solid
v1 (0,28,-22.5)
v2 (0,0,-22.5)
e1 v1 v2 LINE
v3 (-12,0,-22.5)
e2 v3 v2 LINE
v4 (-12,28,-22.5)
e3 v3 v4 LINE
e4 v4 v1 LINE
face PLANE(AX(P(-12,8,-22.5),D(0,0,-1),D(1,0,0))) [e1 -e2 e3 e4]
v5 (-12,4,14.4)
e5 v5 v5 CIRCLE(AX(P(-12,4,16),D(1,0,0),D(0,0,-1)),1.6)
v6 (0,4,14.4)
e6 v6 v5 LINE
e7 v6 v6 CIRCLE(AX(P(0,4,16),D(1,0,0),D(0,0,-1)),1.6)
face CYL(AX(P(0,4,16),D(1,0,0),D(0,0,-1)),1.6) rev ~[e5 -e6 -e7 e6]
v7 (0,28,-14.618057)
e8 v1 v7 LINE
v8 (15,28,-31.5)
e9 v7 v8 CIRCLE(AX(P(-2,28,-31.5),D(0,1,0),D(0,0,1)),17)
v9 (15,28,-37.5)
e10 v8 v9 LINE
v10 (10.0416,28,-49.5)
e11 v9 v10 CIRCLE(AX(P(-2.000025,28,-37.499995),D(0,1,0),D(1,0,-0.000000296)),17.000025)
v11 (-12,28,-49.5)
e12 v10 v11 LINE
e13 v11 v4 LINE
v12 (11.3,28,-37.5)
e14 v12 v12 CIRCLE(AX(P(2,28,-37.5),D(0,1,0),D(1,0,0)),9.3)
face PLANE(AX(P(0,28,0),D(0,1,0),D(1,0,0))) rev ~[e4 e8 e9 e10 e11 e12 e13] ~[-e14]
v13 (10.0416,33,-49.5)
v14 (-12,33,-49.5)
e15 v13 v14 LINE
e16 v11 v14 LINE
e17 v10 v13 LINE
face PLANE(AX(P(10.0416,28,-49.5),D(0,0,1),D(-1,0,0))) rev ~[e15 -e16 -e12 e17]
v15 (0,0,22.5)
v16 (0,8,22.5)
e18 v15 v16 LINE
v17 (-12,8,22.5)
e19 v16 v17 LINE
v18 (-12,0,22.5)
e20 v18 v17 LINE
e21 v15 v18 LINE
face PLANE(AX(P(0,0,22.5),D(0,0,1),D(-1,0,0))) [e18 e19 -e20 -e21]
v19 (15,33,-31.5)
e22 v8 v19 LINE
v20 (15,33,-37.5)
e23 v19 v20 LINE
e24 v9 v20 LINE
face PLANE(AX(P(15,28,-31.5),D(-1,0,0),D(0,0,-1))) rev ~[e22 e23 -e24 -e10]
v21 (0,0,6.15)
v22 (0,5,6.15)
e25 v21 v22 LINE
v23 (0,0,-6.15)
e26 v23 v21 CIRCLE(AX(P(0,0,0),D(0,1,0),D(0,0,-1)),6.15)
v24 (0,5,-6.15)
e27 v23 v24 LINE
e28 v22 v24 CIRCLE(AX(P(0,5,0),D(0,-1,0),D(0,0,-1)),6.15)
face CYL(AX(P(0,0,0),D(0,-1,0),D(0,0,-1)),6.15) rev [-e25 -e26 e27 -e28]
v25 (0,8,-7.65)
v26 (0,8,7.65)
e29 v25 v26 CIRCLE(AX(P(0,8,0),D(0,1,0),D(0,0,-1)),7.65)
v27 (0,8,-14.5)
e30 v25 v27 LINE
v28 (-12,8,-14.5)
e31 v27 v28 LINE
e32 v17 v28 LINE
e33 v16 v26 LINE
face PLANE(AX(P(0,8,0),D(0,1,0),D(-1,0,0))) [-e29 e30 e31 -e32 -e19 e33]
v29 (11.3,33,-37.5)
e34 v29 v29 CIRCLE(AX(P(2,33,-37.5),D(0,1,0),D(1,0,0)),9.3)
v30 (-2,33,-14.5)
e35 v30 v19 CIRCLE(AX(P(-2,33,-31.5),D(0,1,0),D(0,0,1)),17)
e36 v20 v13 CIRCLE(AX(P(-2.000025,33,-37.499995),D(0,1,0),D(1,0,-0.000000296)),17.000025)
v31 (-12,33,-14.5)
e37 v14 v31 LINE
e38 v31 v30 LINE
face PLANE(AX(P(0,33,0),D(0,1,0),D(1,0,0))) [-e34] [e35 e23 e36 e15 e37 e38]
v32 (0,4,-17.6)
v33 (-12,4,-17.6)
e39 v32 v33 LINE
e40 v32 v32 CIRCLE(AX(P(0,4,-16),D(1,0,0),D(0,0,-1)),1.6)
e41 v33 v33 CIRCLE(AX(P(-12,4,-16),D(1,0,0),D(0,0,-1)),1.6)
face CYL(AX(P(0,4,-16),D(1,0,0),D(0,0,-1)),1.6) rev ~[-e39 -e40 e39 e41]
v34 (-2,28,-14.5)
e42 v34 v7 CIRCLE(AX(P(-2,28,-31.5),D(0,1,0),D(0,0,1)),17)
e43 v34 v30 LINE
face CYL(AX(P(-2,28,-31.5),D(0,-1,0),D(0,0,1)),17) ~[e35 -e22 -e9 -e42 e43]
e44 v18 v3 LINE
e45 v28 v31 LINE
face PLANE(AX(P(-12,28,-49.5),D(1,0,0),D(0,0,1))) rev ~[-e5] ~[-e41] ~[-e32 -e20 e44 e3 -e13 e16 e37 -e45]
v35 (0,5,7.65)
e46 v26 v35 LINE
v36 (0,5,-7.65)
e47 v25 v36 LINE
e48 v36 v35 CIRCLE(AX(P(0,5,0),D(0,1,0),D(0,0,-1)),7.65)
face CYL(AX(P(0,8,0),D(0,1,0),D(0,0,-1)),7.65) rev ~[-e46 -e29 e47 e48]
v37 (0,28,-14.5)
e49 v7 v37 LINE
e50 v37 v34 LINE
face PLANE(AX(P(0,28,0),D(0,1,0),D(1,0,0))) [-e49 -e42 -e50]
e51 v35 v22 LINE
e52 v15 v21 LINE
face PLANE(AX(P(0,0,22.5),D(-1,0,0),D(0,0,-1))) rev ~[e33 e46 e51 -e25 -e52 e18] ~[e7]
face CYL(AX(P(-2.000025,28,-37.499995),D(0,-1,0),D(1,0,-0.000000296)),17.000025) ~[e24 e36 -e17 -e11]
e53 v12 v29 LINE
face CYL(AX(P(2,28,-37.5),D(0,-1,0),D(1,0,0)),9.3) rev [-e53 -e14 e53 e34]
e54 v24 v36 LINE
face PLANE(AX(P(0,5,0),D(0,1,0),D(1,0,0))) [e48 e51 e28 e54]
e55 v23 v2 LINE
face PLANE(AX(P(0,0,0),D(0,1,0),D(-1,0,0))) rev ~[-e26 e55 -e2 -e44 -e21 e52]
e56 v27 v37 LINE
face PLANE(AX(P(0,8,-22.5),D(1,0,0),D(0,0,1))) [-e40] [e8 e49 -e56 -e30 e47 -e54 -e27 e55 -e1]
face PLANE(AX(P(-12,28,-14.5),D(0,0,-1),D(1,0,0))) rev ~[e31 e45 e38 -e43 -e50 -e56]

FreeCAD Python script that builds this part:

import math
import FreeCAD as App
import Part
import Sketcher

V = App.Vector


def add_polygon(sketch, points):
    """Adds a closed chain of lines whose ends are joined by coincident constraints."""
    first, n = sketch.GeometryCount, len(points)
    for a, b in zip(points, points[1:] + points[:1]):
        sketch.addGeometry(Part.LineSegment(App.Vector(*a, 0), App.Vector(*b, 0)), False)
    for i in range(n):
        sketch.addConstraint(Sketcher.Constraint("Coincident", first + i, 2, first + (i + 1) % n, 1))

doc = App.newDocument("Part")
params = doc.addObject("Spreadsheet::Sheet", "Params")
for row, (alias, value) in enumerate([
    ("sketch1_width", "12 mm"),
    ("sketch1_height", "45 mm"),
    ("sketch1_radius", "6.15 mm"),
    ("pad1_length", "8 mm"),
    ("sketch2_radius", "7.65 mm"),
    ("pocket1_length", "3 mm"),
    ("sketch3_diameter", "3.2 mm"),
    ("pocket2_length", "12 mm"),
    ("sketch4_height", "8 mm"),
    ("sketch4_width", "12 mm"),
    ("pad2_length", "20 mm"),
    ("sketch5_radius", "17 mm"),
    ("sketch5_diameter", "18.6 mm"),
    ("sketch5_width", "10 mm"),
    ("sketch5_height", "35 mm"),
    ("sketch5_height2", "6 mm"),
    ("pad3_length", "5 mm"),
], start=1):
    params.set(f"A{row}", alias)
    params.set(f"B{row}", "=" + value)
    params.setAlias(f"B{row}", alias)

body = doc.addObject("PartDesign::Body", "Body")

sketch1 = doc.addObject("Sketcher::SketchObject", "Sketch")
body.addObject(sketch1)
sketch1.AttachmentSupport = (doc.XZ_Plane, [""])
sketch1.MapMode = "FlatFace"
sketch1.addGeometry([
    Part.LineSegment(V(-12, 22.5, 0), V(0, 22.5, 0)),
    Part.LineSegment(V(0, 22.5, 0), V(0, 6.15, 0)),
    Part.ArcOfCircle(Part.Circle(V(0, 0, 0), V(0, 0, 1), 6.15), math.radians(90), math.radians(270)),
    Part.LineSegment(V(0, -6.15, 0), V(0, -22.5, 0)),
    Part.LineSegment(V(0, -22.5, 0), V(-12, -22.5, 0)),
    Part.LineSegment(V(-12, -22.5, 0), V(-12, 22.5, 0)),
], False)
sketch1.addConstraint([
    Sketcher.Constraint("Coincident", 0, 2, 1, 1),
    Sketcher.Constraint("Coincident", 1, 2, 2, 1),
    Sketcher.Constraint("Coincident", 2, 2, 3, 1),
    Sketcher.Constraint("Coincident", 3, 2, 4, 1),
    Sketcher.Constraint("Coincident", 4, 2, 5, 1),
    Sketcher.Constraint("Coincident", 5, 2, 0, 1),
    Sketcher.Constraint("Horizontal", 0),
    Sketcher.Constraint("Vertical", 1),
    Sketcher.Constraint("Vertical", 3),
    Sketcher.Constraint("Horizontal", 4),
    Sketcher.Constraint("Vertical", 5),
    Sketcher.Constraint("Coincident", 2, 3, -1, 1),
    Sketcher.Constraint("Symmetric", 0, 2, 3, 2, -1, 1),
    Sketcher.Constraint("PointOnObject", 0, 2, -2),
    Sketcher.Constraint("DistanceX", 0, 1, 0, 2, 12.0),
    Sketcher.Constraint("DistanceY", 5, 1, 5, 2, 45.0),
    Sketcher.Constraint("Radius", 2, 6.15),
])
sketch1.setExpression("Constraints[14]", "Params.sketch1_width")
sketch1.setExpression("Constraints[15]", "Params.sketch1_height")
sketch1.setExpression("Constraints[16]", "Params.sketch1_radius")
pad1 = doc.addObject("PartDesign::Pad", "Pad")
body.addObject(pad1)
pad1.Profile = sketch1
pad1.setExpression("Length", "Params.pad1_length")
pad1.Reversed = True

sketch2 = doc.addObject("Sketcher::SketchObject", "Sketch001")
body.addObject(sketch2)
sketch2.AttachmentSupport = (doc.XZ_Plane, [""])
sketch2.MapMode = "FlatFace"
sketch2.AttachmentOffset = App.Placement(V(0, 0, -8), App.Rotation())
sketch2.addGeometry([
    Part.ArcOfCircle(Part.Circle(V(0, 0, 0), V(0, 0, 1), 7.65), math.radians(90), math.radians(270)),
    Part.LineSegment(V(0, 7.65, 0), V(0, -7.65, 0)),
], False)
sketch2.addConstraint([
    Sketcher.Constraint("Coincident", 0, 1, 1, 1),
    Sketcher.Constraint("Coincident", 1, 2, 0, 2),
    Sketcher.Constraint("Vertical", 1),
    Sketcher.Constraint("Coincident", 0, 3, -1, 1),
    Sketcher.Constraint("PointOnObject", 0, 1, -2),
    Sketcher.Constraint("Radius", 0, 7.65),
])
sketch2.setExpression("Constraints[5]", "Params.sketch2_radius")
pocket1 = doc.addObject("PartDesign::Pocket", "Pocket")
body.addObject(pocket1)
pocket1.Profile = sketch2
pocket1.setExpression("Length", "Params.pocket1_length")
pocket1.Reversed = True

sketch3 = doc.addObject("Sketcher::SketchObject", "Sketch002")
body.addObject(sketch3)
sketch3.AttachmentSupport = (doc.YZ_Plane, [""])
sketch3.MapMode = "FlatFace"
sketch3.addGeometry([
    Part.Circle(V(4, 16, 0), V(0, 0, 1), 1.6),
    Part.Circle(V(4, -16, 0), V(0, 0, 1), 1.6),
], False)
sketch3.addConstraint([
    Sketcher.Constraint("Equal", 0, 1),
    Sketcher.Constraint("Symmetric", 0, 3, 1, 3, -1),
    Sketcher.Constraint("Diameter", 0, 3.2),
    Sketcher.Constraint("DistanceX", -1, 1, 0, 3, 4.0),
    Sketcher.Constraint("DistanceY", -1, 1, 0, 3, 16.0),
])
sketch3.setExpression("Constraints[2]", "Params.sketch3_diameter")
pocket2 = doc.addObject("PartDesign::Pocket", "Pocket001")
body.addObject(pocket2)
pocket2.Profile = sketch3
pocket2.setExpression("Length", "Params.pocket2_length")

sketch4 = doc.addObject("Sketcher::SketchObject", "Sketch003")
body.addObject(sketch4)
sketch4.AttachmentSupport = (doc.XZ_Plane, [""])
sketch4.MapMode = "FlatFace"
sketch4.AttachmentOffset = App.Placement(V(0, 0, -8), App.Rotation())
add_polygon(sketch4, [(0, -22.5), (-12, -22.5), (-12, -14.5), (0, -14.5)])
sketch4.addConstraint([
    Sketcher.Constraint("Horizontal", 0),
    Sketcher.Constraint("Vertical", 1),
    Sketcher.Constraint("Horizontal", 2),
    Sketcher.Constraint("Vertical", 3),
    Sketcher.Constraint("PointOnObject", 2, 2, -2),
    Sketcher.Constraint("DistanceY", 1, 1, 1, 2, 8.0),
    Sketcher.Constraint("DistanceX", 0, 2, 0, 1, 12.0),
    Sketcher.Constraint("DistanceY", 0, 2, -1, 1, 22.5),
])
sketch4.setExpression("Constraints[9]", "Params.sketch4_height")
sketch4.setExpression("Constraints[10]", "Params.sketch4_width")
pad2 = doc.addObject("PartDesign::Pad", "Pad001")
body.addObject(pad2)
pad2.Profile = sketch4
pad2.setExpression("Length", "Params.pad2_length")
pad2.Reversed = True

sketch5 = doc.addObject("Sketcher::SketchObject", "Sketch004")
body.addObject(sketch5)
sketch5.AttachmentSupport = (doc.XZ_Plane, [""])
sketch5.MapMode = "FlatFace"
sketch5.AttachmentOffset = App.Placement(V(0, 0, -28), App.Rotation())
sketch5.addGeometry([
    Part.ArcOfCircle(Part.Circle(V(-2, -37.5, 0), V(0, 0, 1), 17), math.radians(-44.900859), math.radians(0)),
    Part.LineSegment(V(10.0416, -49.5, 0), V(-12, -49.5, 0)),
    Part.LineSegment(V(-12, -49.5, 0), V(-12, -14.5, 0)),
    Part.LineSegment(V(-12, -14.5, 0), V(-2, -14.5, 0)),
    Part.ArcOfCircle(Part.Circle(V(-2, -31.5, 0), V(0, 0, 1), 17), math.radians(0), math.radians(90)),
    Part.LineSegment(V(15, -31.5, 0), V(15, -37.5, 0)),
    Part.Circle(V(2, -37.5, 0), V(0, 0, 1), 9.3),
], False)
sketch5.addConstraint([
    Sketcher.Constraint("Coincident", 0, 1, 1, 1),
    Sketcher.Constraint("Coincident", 1, 2, 2, 1),
    Sketcher.Constraint("Coincident", 2, 2, 3, 1),
    Sketcher.Constraint("Tangent", 3, 2, 4, 2),
    Sketcher.Constraint("Tangent", 4, 1, 5, 1),
    Sketcher.Constraint("Tangent", 5, 2, 0, 2),
    Sketcher.Constraint("Horizontal", 1),
    Sketcher.Constraint("Vertical", 2),
    Sketcher.Constraint("Horizontal", 3),
    Sketcher.Constraint("Vertical", 5),
    Sketcher.Constraint("Equal", 0, 4),
    Sketcher.Constraint("Symmetric", 0, 3, 6, 3, -2),
    Sketcher.Constraint("Radius", 0, 17.0),
    Sketcher.Constraint("Diameter", 6, 18.6),
    Sketcher.Constraint("DistanceX", 3, 1, 3, 2, 10.0),
    Sketcher.Constraint("DistanceY", 2, 1, 2, 2, 35.0),
    Sketcher.Constraint("DistanceY", 5, 2, 5, 1, 6.0),
    Sketcher.Constraint("DistanceX", 1, 2, 6, 3, 14.0),
    Sketcher.Constraint("DistanceY", 0, 3, -1, 1, 37.5),
])
sketch5.setExpression("Constraints[12]", "Params.sketch5_radius")
sketch5.setExpression("Constraints[13]", "Params.sketch5_diameter")
sketch5.setExpression("Constraints[14]", "Params.sketch5_width")
sketch5.setExpression("Constraints[15]", "Params.sketch5_height")
sketch5.setExpression("Constraints[16]", "Params.sketch5_height2")
pad3 = doc.addObject("PartDesign::Pad", "Pad002")
body.addObject(pad3)
pad3.Profile = sketch5
pad3.setExpression("Length", "Params.pad3_length")
pad3.Reversed = True

doc.recompute()
